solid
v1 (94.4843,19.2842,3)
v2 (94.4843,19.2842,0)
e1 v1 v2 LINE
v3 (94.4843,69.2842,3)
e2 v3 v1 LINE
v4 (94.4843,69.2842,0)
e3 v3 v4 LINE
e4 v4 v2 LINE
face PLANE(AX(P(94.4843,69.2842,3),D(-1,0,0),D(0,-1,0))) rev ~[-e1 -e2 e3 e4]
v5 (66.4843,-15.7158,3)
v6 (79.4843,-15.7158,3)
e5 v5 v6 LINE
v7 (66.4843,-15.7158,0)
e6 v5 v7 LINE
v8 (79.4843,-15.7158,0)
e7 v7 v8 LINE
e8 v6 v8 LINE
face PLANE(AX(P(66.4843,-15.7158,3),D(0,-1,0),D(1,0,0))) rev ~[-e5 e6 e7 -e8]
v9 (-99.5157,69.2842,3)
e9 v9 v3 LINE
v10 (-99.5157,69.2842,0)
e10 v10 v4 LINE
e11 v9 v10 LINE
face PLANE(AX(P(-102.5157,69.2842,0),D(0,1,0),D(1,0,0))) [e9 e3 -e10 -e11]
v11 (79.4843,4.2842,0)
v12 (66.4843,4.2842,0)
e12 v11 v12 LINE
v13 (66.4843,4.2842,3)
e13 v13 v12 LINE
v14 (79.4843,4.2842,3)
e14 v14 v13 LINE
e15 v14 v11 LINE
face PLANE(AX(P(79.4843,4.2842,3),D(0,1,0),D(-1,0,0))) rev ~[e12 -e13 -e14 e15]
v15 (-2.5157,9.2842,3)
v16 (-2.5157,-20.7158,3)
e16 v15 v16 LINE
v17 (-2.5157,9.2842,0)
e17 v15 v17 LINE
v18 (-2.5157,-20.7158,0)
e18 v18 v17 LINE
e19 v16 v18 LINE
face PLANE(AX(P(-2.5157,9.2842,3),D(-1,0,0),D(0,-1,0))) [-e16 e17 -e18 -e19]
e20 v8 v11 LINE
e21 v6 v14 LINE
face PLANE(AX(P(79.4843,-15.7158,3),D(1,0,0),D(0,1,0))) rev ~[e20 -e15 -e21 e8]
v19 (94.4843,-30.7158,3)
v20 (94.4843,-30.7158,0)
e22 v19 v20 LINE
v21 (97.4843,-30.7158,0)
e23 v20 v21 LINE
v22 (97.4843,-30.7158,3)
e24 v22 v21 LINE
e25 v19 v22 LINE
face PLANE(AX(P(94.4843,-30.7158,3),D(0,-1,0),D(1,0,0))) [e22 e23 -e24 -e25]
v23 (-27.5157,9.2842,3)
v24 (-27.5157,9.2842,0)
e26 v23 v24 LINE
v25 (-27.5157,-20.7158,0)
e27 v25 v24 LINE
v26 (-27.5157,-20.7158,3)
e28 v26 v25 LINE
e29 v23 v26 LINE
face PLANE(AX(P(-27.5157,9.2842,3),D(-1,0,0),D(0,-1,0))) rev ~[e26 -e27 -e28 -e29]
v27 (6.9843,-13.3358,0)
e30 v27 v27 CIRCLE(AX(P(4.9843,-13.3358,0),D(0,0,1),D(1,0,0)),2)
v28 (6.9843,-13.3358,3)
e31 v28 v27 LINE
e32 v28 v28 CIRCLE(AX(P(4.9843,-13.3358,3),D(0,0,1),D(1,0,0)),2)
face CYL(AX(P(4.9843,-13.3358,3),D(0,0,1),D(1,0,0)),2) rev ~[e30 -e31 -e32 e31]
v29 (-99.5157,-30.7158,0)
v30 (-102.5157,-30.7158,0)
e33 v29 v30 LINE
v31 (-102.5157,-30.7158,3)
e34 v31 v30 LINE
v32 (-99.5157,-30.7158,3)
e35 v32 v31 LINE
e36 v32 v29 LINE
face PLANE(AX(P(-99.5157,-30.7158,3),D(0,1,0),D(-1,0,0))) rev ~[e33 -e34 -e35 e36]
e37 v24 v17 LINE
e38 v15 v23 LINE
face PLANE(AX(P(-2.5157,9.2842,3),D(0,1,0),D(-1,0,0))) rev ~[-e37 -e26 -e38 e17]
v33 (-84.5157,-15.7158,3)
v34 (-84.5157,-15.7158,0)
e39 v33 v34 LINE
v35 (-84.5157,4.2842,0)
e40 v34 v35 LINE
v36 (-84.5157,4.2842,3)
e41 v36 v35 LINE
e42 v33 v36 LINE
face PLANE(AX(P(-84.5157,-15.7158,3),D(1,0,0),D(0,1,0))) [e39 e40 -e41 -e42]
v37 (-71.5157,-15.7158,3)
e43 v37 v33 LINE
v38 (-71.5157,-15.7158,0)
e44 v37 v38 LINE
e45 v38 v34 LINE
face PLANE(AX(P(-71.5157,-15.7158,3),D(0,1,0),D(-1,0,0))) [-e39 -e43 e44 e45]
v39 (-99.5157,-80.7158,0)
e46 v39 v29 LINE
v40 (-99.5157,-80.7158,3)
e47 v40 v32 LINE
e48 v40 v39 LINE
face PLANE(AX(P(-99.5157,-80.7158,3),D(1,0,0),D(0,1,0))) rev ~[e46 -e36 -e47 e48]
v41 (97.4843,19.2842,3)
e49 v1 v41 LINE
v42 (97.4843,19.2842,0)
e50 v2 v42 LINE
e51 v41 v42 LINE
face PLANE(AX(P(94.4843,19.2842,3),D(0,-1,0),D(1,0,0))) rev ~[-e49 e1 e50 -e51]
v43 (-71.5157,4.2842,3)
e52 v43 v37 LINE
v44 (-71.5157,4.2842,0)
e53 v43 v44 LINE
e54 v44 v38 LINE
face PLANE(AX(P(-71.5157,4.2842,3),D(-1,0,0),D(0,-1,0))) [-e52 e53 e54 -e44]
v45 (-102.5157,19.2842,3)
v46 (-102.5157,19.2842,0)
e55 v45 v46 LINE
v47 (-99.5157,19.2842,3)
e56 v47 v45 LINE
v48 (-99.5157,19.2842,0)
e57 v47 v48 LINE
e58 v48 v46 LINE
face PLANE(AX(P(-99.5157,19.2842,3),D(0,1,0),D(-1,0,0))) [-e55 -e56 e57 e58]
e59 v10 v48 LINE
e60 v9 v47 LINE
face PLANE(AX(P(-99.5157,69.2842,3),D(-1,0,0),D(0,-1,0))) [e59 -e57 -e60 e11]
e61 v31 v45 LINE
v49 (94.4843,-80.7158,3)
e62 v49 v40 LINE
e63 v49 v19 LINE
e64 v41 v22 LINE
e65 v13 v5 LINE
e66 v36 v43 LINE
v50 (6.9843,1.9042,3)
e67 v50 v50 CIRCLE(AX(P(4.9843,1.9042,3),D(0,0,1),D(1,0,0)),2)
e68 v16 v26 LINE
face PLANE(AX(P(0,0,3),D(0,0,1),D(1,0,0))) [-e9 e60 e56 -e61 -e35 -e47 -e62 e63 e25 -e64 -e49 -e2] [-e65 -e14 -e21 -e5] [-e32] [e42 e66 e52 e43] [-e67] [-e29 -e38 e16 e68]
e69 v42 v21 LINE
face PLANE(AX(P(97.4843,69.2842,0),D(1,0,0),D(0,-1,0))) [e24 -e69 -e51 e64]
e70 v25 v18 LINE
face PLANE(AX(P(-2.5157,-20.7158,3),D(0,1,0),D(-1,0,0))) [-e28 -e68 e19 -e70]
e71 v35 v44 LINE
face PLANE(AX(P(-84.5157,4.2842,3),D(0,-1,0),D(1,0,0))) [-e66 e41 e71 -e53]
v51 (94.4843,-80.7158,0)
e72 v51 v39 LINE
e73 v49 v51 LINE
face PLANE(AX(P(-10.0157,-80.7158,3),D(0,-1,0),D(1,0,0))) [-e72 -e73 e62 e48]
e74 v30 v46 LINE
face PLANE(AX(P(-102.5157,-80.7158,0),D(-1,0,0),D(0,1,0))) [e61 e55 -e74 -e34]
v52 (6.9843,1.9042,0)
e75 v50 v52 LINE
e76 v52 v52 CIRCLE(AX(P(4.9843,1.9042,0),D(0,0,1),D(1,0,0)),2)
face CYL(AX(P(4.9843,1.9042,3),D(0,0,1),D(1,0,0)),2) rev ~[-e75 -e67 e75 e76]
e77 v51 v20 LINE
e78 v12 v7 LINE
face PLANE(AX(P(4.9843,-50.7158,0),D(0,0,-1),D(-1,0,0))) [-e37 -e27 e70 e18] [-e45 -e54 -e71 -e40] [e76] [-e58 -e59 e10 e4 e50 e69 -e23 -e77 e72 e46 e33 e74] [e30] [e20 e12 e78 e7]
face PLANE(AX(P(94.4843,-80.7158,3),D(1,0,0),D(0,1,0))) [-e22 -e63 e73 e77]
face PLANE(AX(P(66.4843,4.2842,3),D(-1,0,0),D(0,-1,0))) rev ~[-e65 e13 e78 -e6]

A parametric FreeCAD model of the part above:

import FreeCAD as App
import Part
import Sketcher
from FreeCAD import Vector
Q = App.Units.Quantity

doc = App.newDocument("Part")
body = doc.addObject("PartDesign::Body", "Body")

# Sketch on XY plane
sketch1 = body.newObject("Sketcher::SketchObject", "Sketch")
sketch1.AttachmentSupport = (doc.getObject("XY_Plane"), [""])
sketch1.MapMode = "FlatFace"
sketch1.addGeometry([
    Part.LineSegment(Vector(97, 69, 0), Vector(-103, 69, 0)),
    Part.LineSegment(Vector(-103, 69, 0), Vector(-103, -81, 0)),
    Part.LineSegment(Vector(-103, -81, 0), Vector(97, -81, 0)),
    Part.LineSegment(Vector(97, -81, 0), Vector(97, 69, 0)),
], False)
sketch1.addConstraint([
    Sketcher.Constraint("Coincident", 0, 2, 1, 1),
    Sketcher.Constraint("Coincident", 1, 2, 2, 1),
    Sketcher.Constraint("Coincident", 2, 2, 3, 1),
    Sketcher.Constraint("Coincident", 3, 2, 0, 1),
    Sketcher.Constraint("Horizontal", 0),
    Sketcher.Constraint("Vertical", 1),
    Sketcher.Constraint("Horizontal", 2),
    Sketcher.Constraint("Vertical", 3),
    Sketcher.Constraint("DistanceX", 0, 2, 0, 1, Q("200 mm")),
    Sketcher.Constraint("DistanceY", 1, 2, 1, 1, Q("150 mm")),
    Sketcher.Constraint("DistanceX", 0, 2, -1, 1, Q("102.5157 mm")),
    Sketcher.Constraint("DistanceY", -1, 1, 0, 2, Q("69.2842 mm")),
])
pad1 = body.newObject("PartDesign::Pad", "Pad")
pad1.Profile = sketch1
pad1.Length = 3

# Sketch on XY plane
sketch2 = body.newObject("Sketcher::SketchObject", "Sketch001")
sketch2.AttachmentSupport = (doc.getObject("XY_Plane"), [""])
sketch2.MapMode = "FlatFace"
sketch2.AttachmentOffset = App.Placement(Vector(0, 0, 3), App.Rotation())
sketch2.addGeometry([
    Part.LineSegment(Vector(-99.5, 19.3, 0), Vector(-99.5, 69.3, 0)),
    Part.LineSegment(Vector(-99.5, 69.3, 0), Vector(-102.5, 69.3, 0)),
    Part.LineSegment(Vector(-102.5, 69.3, 0), Vector(-102.5, 19.3, 0)),
    Part.LineSegment(Vector(-102.5, 19.3, 0), Vector(-99.5, 19.3, 0)),
], False)
sketch2.addConstraint([
    Sketcher.Constraint("Coincident", 0, 2, 1, 1),
    Sketcher.Constraint("Coincident", 1, 2, 2, 1),
    Sketcher.Constraint("Coincident", 2, 2, 3, 1),
    Sketcher.Constraint("Coincident", 3, 2, 0, 1),
    Sketcher.Constraint("Vertical", 0),
    Sketcher.Constraint("Horizontal", 1),
    Sketcher.Constraint("Vertical", 2),
    Sketcher.Constraint("Horizontal", 3),
    Sketcher.Constraint("DistanceX", 1, 2, 1, 1, Q("3 mm")),
    Sketcher.Constraint("DistanceY", 0, 1, 0, 2, Q("50 mm")),
    Sketcher.Constraint("DistanceX", 0, 2, -1, 1, Q("99.5157 mm")),
    Sketcher.Constraint("DistanceY", -1, 1, 0, 2, Q("69.2842 mm")),
])
pocket1 = body.newObject("PartDesign::Pocket", "Pocket")
pocket1.Profile = sketch2
pocket1.Length = 3

# Sketch on XY plane
sketch3 = body.newObject("Sketcher::SketchObject", "Sketch002")
sketch3.AttachmentSupport = (doc.getObject("XY_Plane"), [""])
sketch3.MapMode = "FlatFace"
sketch3.AttachmentOffset = App.Placement(Vector(0, 0, 3), App.Rotation())
sketch3.addGeometry([
    Part.LineSegment(Vector(94.5, -80.7, 0), Vector(97.5, -80.7, 0)),
    Part.LineSegment(Vector(97.5, -80.7, 0), Vector(97.5, -30.7, 0)),
    Part.LineSegment(Vector(97.5, -30.7, 0), Vector(94.5, -30.7, 0)),
    Part.LineSegment(Vector(94.5, -30.7, 0), Vector(94.5, -80.7, 0)),
], False)
sketch3.addConstraint([
    Sketcher.Constraint("Coincident", 0, 2, 1, 1),
    Sketcher.Constraint("Coincident", 1, 2, 2, 1),
    Sketcher.Constraint("Coincident", 2, 2, 3, 1),
    Sketcher.Constraint("Coincident", 3, 2, 0, 1),
    Sketcher.Constraint("Horizontal", 0),
    Sketcher.Constraint("Vertical", 1),
    Sketcher.Constraint("Horizontal", 2),
    Sketcher.Constraint("Vertical", 3),
    Sketcher.Constraint("DistanceX", 0, 1, 0, 2, Q("3 mm")),
    Sketcher.Constraint("DistanceY", 1, 1, 1, 2, Q("50 mm")),
    Sketcher.Constraint("DistanceX", -1, 1, 0, 2, Q("97.4843 mm")),
    Sketcher.Constraint("DistanceY", 0, 2, -1, 1, Q("80.7158 mm")),
])
pocket2 = body.newObject("PartDesign::Pocket", "Pocket001")
pocket2.Profile = sketch3
pocket2.Length = 3

# Sketch on XY plane
sketch4 = body.newObject("Sketcher::SketchObject", "Sketch003")
sketch4.AttachmentSupport = (doc.getObject("XY_Plane"), [""])
sketch4.MapMode = "FlatFace"
sketch4.AttachmentOffset = App.Placement(Vector(0, 0, 3), App.Rotation())
sketch4.addGeometry([
    Part.LineSegment(Vector(94.5, 19.3, 0), Vector(97.5, 19.3, 0)),
    Part.LineSegment(Vector(97.5, 19.3, 0), Vector(97.5, 69.3, 0)),
    Part.LineSegment(Vector(97.5, 69.3, 0), Vector(94.5, 69.3, 0)),
    Part.LineSegment(Vector(94.5, 69.3, 0), Vector(94.5, 19.3, 0)),
], False)
sketch4.addConstraint([
    Sketcher.Constraint("Coincident", 0, 2, 1, 1),
    Sketcher.Constraint("Coincident", 1, 2, 2, 1),
    Sketcher.Constraint("Coincident", 2, 2, 3, 1),
    Sketcher.Constraint("Coincident", 3, 2, 0, 1),
    Sketcher.Constraint("Horizontal", 0),
    Sketcher.Constraint("Vertical", 1),
    Sketcher.Constraint("Horizontal", 2),
    Sketcher.Constraint("Vertical", 3),
    Sketcher.Constraint("DistanceX", 0, 1, 0, 2, Q("3 mm")),
    Sketcher.Constraint("DistanceY", 1, 1, 1, 2, Q("50 mm")),
    Sketcher.Constraint("DistanceX", -1, 1, 0, 2, Q("97.4843 mm")),
    Sketcher.Constraint("DistanceY", -1, 1, 0, 2, Q("19.2842 mm")),
])
pocket3 = body.newObject("PartDesign::Pocket", "Pocket002")
pocket3.Profile = sketch4
pocket3.Length = 3

# Sketch on XY plane
sketch5 = body.newObject("Sketcher::SketchObject", "Sketch004")
sketch5.AttachmentSupport = (doc.getObject("XY_Plane"), [""])
sketch5.MapMode = "FlatFace"
sketch5.AttachmentOffset = App.Placement(Vector(0, 0, 3), App.Rotation())
sketch5.addGeometry([
    Part.LineSegment(Vector(-99.5, -30.7, 0), Vector(-102.5, -30.7, 0)),
    Part.LineSegment(Vector(-102.5, -30.7, 0), Vector(-102.5, -80.7, 0)),
    Part.LineSegment(Vector(-102.5, -80.7, 0), Vector(-99.5, -80.7, 0)),
    Part.LineSegment(Vector(-99.5, -80.7, 0), Vector(-99.5, -30.7, 0)),
], False)
sketch5.addConstraint([
    Sketcher.Constraint("Coincident", 0, 2, 1, 1),
    Sketcher.Constraint("Coincident", 1, 2, 2, 1),
    Sketcher.Constraint("Coincident", 2, 2, 3, 1),
    Sketcher.Constraint("Coincident", 3, 2, 0, 1),
    Sketcher.Constraint("Horizontal", 0),
    Sketcher.Constraint("Vertical", 1),
    Sketcher.Constraint("Horizontal", 2),
    Sketcher.Constraint("Vertical", 3),
    Sketcher.Constraint("DistanceX", 0, 2, 0, 1, Q("3 mm")),
    Sketcher.Constraint("DistanceY", 1, 2, 1, 1, Q("50 mm")),
    Sketcher.Constraint("DistanceX", 0, 2, -1, 1, Q("102.5157 mm")),
    Sketcher.Constraint("DistanceY", 0, 2, -1, 1, Q("30.7158 mm")),
])
pocket4 = body.newObject("PartDesign::Pocket", "Pocket003")
pocket4.Profile = sketch5
pocket4.Length = 3

# Sketch on XY plane
sketch6 = body.newObject("Sketcher::SketchObject", "Sketch005")
sketch6.AttachmentSupport = (doc.getObject("XY_Plane"), [""])
sketch6.MapMode = "FlatFace"
sketch6.AttachmentOffset = App.Placement(Vector(0, 0, 3), App.Rotation())
sketch6.addGeometry([
    Part.LineSegment(Vector(-10, -81, 0), Vector(5, -81, 0)),
    Part.LineSegment(Vector(5, -81, 0), Vector(5, -51, 0)),
    Part.LineSegment(Vector(5, -51, 0), Vector(-10, -51, 0)),
    Part.LineSegment(Vector(-10, -51, 0), Vector(-10, -81, 0)),
], False)
sketch6.addConstraint([
    Sketcher.Constraint("Coincident", 0, 2, 1, 1),
    Sketcher.Constraint("Coincident", 1, 2, 2, 1),
    Sketcher.Constraint("Coincident", 2, 2, 3, 1),
    Sketcher.Constraint("Coincident", 3, 2, 0, 1),
    Sketcher.Constraint("Horizontal", 0),
    Sketcher.Constraint("Vertical", 1),
    Sketcher.Constraint("Horizontal", 2),
    Sketcher.Constraint("Vertical", 3),
    Sketcher.Constraint("DistanceX", 0, 1, 0, 2, Q("15 mm")),
    Sketcher.Constraint("DistanceY", 1, 1, 1, 2, Q("30 mm")),
    Sketcher.Constraint("DistanceX", -1, 1, 0, 2, Q("4.9843 mm")),
    Sketcher.Constraint("DistanceY", 0, 2, -1, 1, Q("80.7158 mm")),
])
pocket5 = body.newObject("PartDesign::Pocket", "Pocket004")
pocket5.Profile = sketch6
pocket5.Length = 3

# Sketch on XZ plane
sketch7 = body.newObject("Sketcher::SketchObject", "Sketch006")
sketch7.AttachmentSupport = (doc.getObject("XZ_Plane"), [""])
sketch7.MapMode = "FlatFace"
sketch7.AttachmentOffset = App.Placement(Vector(0, 0, 50.7158), App.Rotation())
sketch7.addGeometry([
    Part.LineSegment(Vector(5, 0, 0), Vector(5, 3, 0)),
    Part.LineSegment(Vector(5, 3, 0), Vector(-10, 3, 0)),
    Part.LineSegment(Vector(-10, 3, 0), Vector(-10, 0, 0)),
    Part.LineSegment(Vector(-10, 0, 0), Vector(5, 0, 0)),
], False)
sketch7.addConstraint([
    Sketcher.Constraint("Coincident", 0, 2, 1, 1),
    Sketcher.Constraint("Coincident", 1, 2, 2, 1),
    Sketcher.Constraint("Coincident", 2, 2, 3, 1),
    Sketcher.Constraint("Coincident", 3, 2, 0, 1),
    Sketcher.Constraint("Vertical", 0),
    Sketcher.Constraint("Horizontal", 1),
    Sketcher.Constraint("Vertical", 2),
    Sketcher.Constraint("Horizontal", 3),
    Sketcher.Constraint("PointOnObject", 2, 2, -1),
    Sketcher.Constraint("DistanceX", 1, 2, 1, 1, Q("15 mm")),
    Sketcher.Constraint("DistanceY", 0, 1, 0, 2, Q("3 mm")),
    Sketcher.Constraint("DistanceX", -1, 1, 0, 2, Q("4.9843 mm")),
])
pad2 = body.newObject("PartDesign::Pad", "Pad001")
pad2.Profile = sketch7
pad2.Length = 30

# Sketch on XY plane
sketch8 = body.newObject("Sketcher::SketchObject", "Sketch007")
sketch8.AttachmentSupport = (doc.getObject("XY_Plane"), [""])
sketch8.MapMode = "FlatFace"
sketch8.AttachmentOffset = App.Placement(Vector(0, 0, 3), App.Rotation())
sketch8.addGeometry([
    Part.LineSegment(Vector(-2.5, -20.7, 0), Vector(-2.5, 9.3, 0)),  # 0
    Part.LineSegment(Vector(-2.5, 9.3, 0), Vector(-27.5, 9.3, 0)),  # 1
    Part.LineSegment(Vector(-27.5, 9.3, 0), Vector(-27.5, -20.7, 0)),  # 2
    Part.LineSegment(Vector(-27.5, -20.7, 0), Vector(-2.5, -20.7, 0)),  # 3
    Part.Circle(Vector(5, 1.9, 0), Vector(0, 0, 1), 2),  # 4
    Part.Circle(Vector(5, -13.3, 0), Vector(0, 0, 1), 2),  # 5
], False)
sketch8.addConstraint([
    Sketcher.Constraint("Coincident", 0, 2, 1, 1),
    Sketcher.Constraint("Coincident", 1, 2, 2, 1),
    Sketcher.Constraint("Coincident", 2, 2, 3, 1),
    Sketcher.Constraint("Coincident", 3, 2, 0, 1),
    Sketcher.Constraint("Vertical", 0),
    Sketcher.Constraint("Horizontal", 1),
    Sketcher.Constraint("Vertical", 2),
    Sketcher.Constraint("Horizontal", 3),
    Sketcher.Constraint("Equal", 4, 5),
    Sketcher.Constraint("Vertical", 4, 3, 5, 3),
    Sketcher.Constraint("Diameter", 4, Q("4 mm")),
    Sketcher.Constraint("DistanceX", 1, 2, 1, 1, Q("25 mm")),
    Sketcher.Constraint("DistanceY", 0, 1, 0, 2, Q("30 mm")),
    Sketcher.Constraint("DistanceX", 0, 2, 4, 3, Q("7.5 mm")),
    Sketcher.Constraint("DistanceY", 5, 3, 4, 3, Q("15.24 mm")),
    Sketcher.Constraint("DistanceY", 4, 3, 0, 2, Q("7.38 mm")),
    Sketcher.Constraint("DistanceX", -1, 1, 4, 3, Q("4.9843 mm")),
    Sketcher.Constraint("DistanceY", -1, 1, 4, 3, Q("1.9042 mm")),
])
pocket6 = body.newObject("PartDesign::Pocket", "Pocket005")
pocket6.Profile = sketch8
pocket6.Length = 21.5

# Sketch on XY plane
sketch9 = body.newObject("Sketcher::SketchObject", "Sketch008")
sketch9.AttachmentSupport = (doc.getObject("XY_Plane"), [""])
sketch9.MapMode = "FlatFace"
sketch9.AttachmentOffset = App.Placement(Vector(0, 0, 3), App.Rotation())
sketch9.addGeometry([
    Part.LineSegment(Vector(59, 8, 0), Vector(36, 8, 0)),
    Part.LineSegment(Vector(36, 8, 0), Vector(36, -20, 0)),
    Part.LineSegment(Vector(36, -20, 0), Vector(59, -20, 0)),
    Part.LineSegment(Vector(59, -20, 0), Vector(59, 8, 0)),
], False)
sketch9.addConstraint([
    Sketcher.Constraint("Coincident", 0, 2, 1, 1),
    Sketcher.Constraint("Coincident", 1, 2, 2, 1),
    Sketcher.Constraint("Coincident", 2, 2, 3, 1),
    Sketcher.Constraint("Coincident", 3, 2, 0, 1),
    Sketcher.Constraint("Horizontal", 0),
    Sketcher.Constraint("Vertical", 1),
    Sketcher.Constraint("Horizontal", 2),
    Sketcher.Constraint("Vertical", 3),
    Sketcher.Constraint("DistanceX", 0, 2, 0, 1, Q("22.3 mm")),
    Sketcher.Constraint("DistanceY", 1, 2, 1, 1, Q("28.3 mm")),
    Sketcher.Constraint("DistanceY", -1, 1, 0, 2, Q("8.472 mm")),
    Sketcher.Constraint("DistanceX", -1, 1, 0, 2, Q("36.2282 mm")),
])
pocket7 = body.newObject("PartDesign::Pocket", "Pocket006")
pocket7.Profile = sketch9
pocket7.Length = 30

# Sketch on XY plane
sketch10 = body.newObject("Sketcher::SketchObject", "Sketch009")
sketch10.AttachmentSupport = (doc.getObject("XY_Plane"), [""])
sketch10.MapMode = "FlatFace"
sketch10.AttachmentOffset = App.Placement(Vector(0, 0, 3), App.Rotation())
sketch10.addGeometry([
    Part.LineSegment(Vector(36, 8, 0), Vector(36, -20, 0)),
    Part.LineSegment(Vector(36, -20, 0), Vector(59, -20, 0)),
    Part.LineSegment(Vector(59, -20, 0), Vector(59, 8, 0)),
    Part.LineSegment(Vector(59, 8, 0), Vector(36, 8, 0)),
], False)
sketch10.addConstraint([
    Sketcher.Constraint("Coincident", 0, 2, 1, 1),
    Sketcher.Constraint("Coincident", 1, 2, 2, 1),
    Sketcher.Constraint("Coincident", 2, 2, 3, 1),
    Sketcher.Constraint("Coincident", 3, 2, 0, 1),
    Sketcher.Constraint("Vertical", 0),
    Sketcher.Constraint("Horizontal", 1),
    Sketcher.Constraint("Vertical", 2),
    Sketcher.Constraint("Horizontal", 3),
    Sketcher.Constraint("DistanceX", 1, 1, 1, 2, Q("22.3 mm")),
    Sketcher.Constraint("DistanceY", 0, 2, 0, 1, Q("28.3 mm")),
    Sketcher.Constraint("DistanceY", 0, 2, -1, 1, Q("19.828 mm")),
    Sketcher.Constraint("DistanceX", -1, 1, 0, 2, Q("36.2282 mm")),
])
pad3 = body.newObject("PartDesign::Pad", "Pad002")
pad3.Profile = sketch10
pad3.Length = 3
pad3.Reversed = True

# Sketch on XY plane
sketch11 = body.newObject("Sketcher::SketchObject", "Sketch010")
sketch11.AttachmentSupport = (doc.getObject("XY_Plane"), [""])
sketch11.MapMode = "FlatFace"
sketch11.AttachmentOffset = App.Placement(Vector(0, 0, 3), App.Rotation())
sketch11.addGeometry([
    Part.LineSegment(Vector(54, 4, 0), Vector(41, 4, 0)),
    Part.LineSegment(Vector(41, 4, 0), Vector(41, -16, 0)),
    Part.LineSegment(Vector(41, -16, 0), Vector(54, -16, 0)),
    Part.LineSegment(Vector(54, -16, 0), Vector(54, 4, 0)),
], False)
sketch11.addConstraint([
    Sketcher.Constraint("Coincident", 0, 2, 1, 1),
    Sketcher.Constraint("Coincident", 1, 2, 2, 1),
    Sketcher.Constraint("Coincident", 2, 2, 3, 1),
    Sketcher.Constraint("Coincident", 3, 2, 0, 1),
    Sketcher.Constraint("Horizontal", 0),
    Sketcher.Constraint("Vertical", 1),
    Sketcher.Constraint("Horizontal", 2),
    Sketcher.Constraint("Vertical", 3),
    Sketcher.Constraint("DistanceY", 1, 2, 1, 1, Q("20 mm")),
    Sketcher.Constraint("DistanceX", 0, 2, 0, 1, Q("12.997 mm")),
    Sketcher.Constraint("DistanceX", -1, 1, 0, 2, Q("40.949 mm")),
    Sketcher.Constraint("DistanceY", -1, 1, 0, 2, Q("4.2992 mm")),
])
pocket8 = body.newObject("PartDesign::Pocket", "Pocket007")
pocket8.Profile = sketch11
pocket8.Length = 3

# Sketch on XY plane
sketch12 = body.newObject("Sketcher::SketchObject", "Sketch011")
sketch12.AttachmentSupport = (doc.getObject("XY_Plane"), [""])
sketch12.MapMode = "FlatFace"
sketch12.AttachmentOffset = App.Placement(Vector(0, 0, 3), App.Rotation())
sketch12.addGeometry([
    Part.LineSegment(Vector(41, 4, 0), Vector(41, -16, 0)),
    Part.LineSegment(Vector(41, -16, 0), Vector(54, -16, 0)),
    Part.LineSegment(Vector(54, -16, 0), Vector(54, 4, 0)),
    Part.LineSegment(Vector(54, 4, 0), Vector(41, 4, 0)),
], False)
sketch12.addConstraint([
    Sketcher.Constraint("Coincident", 0, 2, 1, 1),
    Sketcher.Constraint("Coincident", 1, 2, 2, 1),
    Sketcher.Constraint("Coincident", 2, 2, 3, 1),
    Sketcher.Constraint("Coincident", 3, 2, 0, 1),
    Sketcher.Constraint("Vertical", 0),
    Sketcher.Constraint("Horizontal", 1),
    Sketcher.Constraint("Vertical", 2),
    Sketcher.Constraint("Horizontal", 3),
    Sketcher.Constraint("DistanceY", 0, 2, 0, 1, Q("20 mm")),
    Sketcher.Constraint("DistanceX", 1, 1, 1, 2, Q("12.997 mm")),
    Sketcher.Constraint("DistanceX", -1, 1, 0, 2, Q("40.949 mm")),
    Sketcher.Constraint("DistanceY", 0, 2, -1, 1, Q("15.7008 mm")),
])
pad4 = body.newObject("PartDesign::Pad", "Pad003")
pad4.Profile = sketch12
pad4.Length = 3
pad4.Reversed = True

# Sketch on XY plane
sketch13 = body.newObject("Sketcher::SketchObject", "Sketch012")
sketch13.AttachmentSupport = (doc.getObject("XY_Plane"), [""])
sketch13.MapMode = "FlatFace"
sketch13.AttachmentOffset = App.Placement(Vector(0, 0, 3), App.Rotation())
sketch13.addGeometry([
    Part.LineSegment(Vector(-72, 4, 0), Vector(-85, 4, 0)),  # 0
    Part.LineSegment(Vector(-85, 4, 0), Vector(-85, -16, 0)),  # 1
    Part.LineSegment(Vector(-85, -16, 0), Vector(-72, -16, 0)),  # 2
    Part.LineSegment(Vector(-72, -16, 0), Vector(-72, 4, 0)),  # 3
    Part.LineSegment(Vector(79, -16, 0), Vector(79, 4, 0)),  # 4
    Part.LineSegment(Vector(79, 4, 0), Vector(66, 4, 0)),  # 5
    Part.LineSegment(Vector(66, 4, 0), Vector(66, -16, 0)),  # 6
    Part.LineSegment(Vector(66, -16, 0), Vector(79, -16, 0)),  # 7
], False)
sketch13.addConstraint([
    Sketcher.Constraint("Coincident", 0, 2, 1, 1),
    Sketcher.Constraint("Coincident", 1, 2, 2, 1),
    Sketcher.Constraint("Coincident", 2, 2, 3, 1),
    Sketcher.Constraint("Coincident", 3, 2, 0, 1),
    Sketcher.Constraint("Coincident", 4, 2, 5, 1),
    Sketcher.Constraint("Coincident", 5, 2, 6, 1),
    Sketcher.Constraint("Coincident", 6, 2, 7, 1),
    Sketcher.Constraint("Coincident", 7, 2, 4, 1),
    Sketcher.Constraint("Horizontal", 0),
    Sketcher.Constraint("Vertical", 1),
    Sketcher.Constraint("Horizontal", 2),
    Sketcher.Constraint("Vertical", 3),
    Sketcher.Constraint("Vertical", 4),
    Sketcher.Constraint("Horizontal", 5),
    Sketcher.Constraint("Vertical", 6),
    Sketcher.Constraint("Horizontal", 7),
    Sketcher.Constraint("Horizontal", 3, 2, 4, 2),
    Sketcher.Constraint("Horizontal", 2, 2, 6, 2),
    Sketcher.Constraint("Equal", 2, 5),
    Sketcher.Constraint("DistanceX", 0, 2, 0, 1, Q("13 mm")),
    Sketcher.Constraint("DistanceY", 1, 2, 1, 1, Q("20 mm")),
    Sketcher.Constraint("DistanceX", 3, 2, 4, 2, Q("151 mm")),
    Sketcher.Constraint("DistanceX", 0, 2, -1, 1, Q("84.5157 mm")),
    Sketcher.Constraint("DistanceY", -1, 1, 0, 2, Q("4.2842 mm")),
])
pocket9 = body.newObject("PartDesign::Pocket", "Pocket008")
pocket9.Profile = sketch13
pocket9.Length = 3

doc.recompute()
